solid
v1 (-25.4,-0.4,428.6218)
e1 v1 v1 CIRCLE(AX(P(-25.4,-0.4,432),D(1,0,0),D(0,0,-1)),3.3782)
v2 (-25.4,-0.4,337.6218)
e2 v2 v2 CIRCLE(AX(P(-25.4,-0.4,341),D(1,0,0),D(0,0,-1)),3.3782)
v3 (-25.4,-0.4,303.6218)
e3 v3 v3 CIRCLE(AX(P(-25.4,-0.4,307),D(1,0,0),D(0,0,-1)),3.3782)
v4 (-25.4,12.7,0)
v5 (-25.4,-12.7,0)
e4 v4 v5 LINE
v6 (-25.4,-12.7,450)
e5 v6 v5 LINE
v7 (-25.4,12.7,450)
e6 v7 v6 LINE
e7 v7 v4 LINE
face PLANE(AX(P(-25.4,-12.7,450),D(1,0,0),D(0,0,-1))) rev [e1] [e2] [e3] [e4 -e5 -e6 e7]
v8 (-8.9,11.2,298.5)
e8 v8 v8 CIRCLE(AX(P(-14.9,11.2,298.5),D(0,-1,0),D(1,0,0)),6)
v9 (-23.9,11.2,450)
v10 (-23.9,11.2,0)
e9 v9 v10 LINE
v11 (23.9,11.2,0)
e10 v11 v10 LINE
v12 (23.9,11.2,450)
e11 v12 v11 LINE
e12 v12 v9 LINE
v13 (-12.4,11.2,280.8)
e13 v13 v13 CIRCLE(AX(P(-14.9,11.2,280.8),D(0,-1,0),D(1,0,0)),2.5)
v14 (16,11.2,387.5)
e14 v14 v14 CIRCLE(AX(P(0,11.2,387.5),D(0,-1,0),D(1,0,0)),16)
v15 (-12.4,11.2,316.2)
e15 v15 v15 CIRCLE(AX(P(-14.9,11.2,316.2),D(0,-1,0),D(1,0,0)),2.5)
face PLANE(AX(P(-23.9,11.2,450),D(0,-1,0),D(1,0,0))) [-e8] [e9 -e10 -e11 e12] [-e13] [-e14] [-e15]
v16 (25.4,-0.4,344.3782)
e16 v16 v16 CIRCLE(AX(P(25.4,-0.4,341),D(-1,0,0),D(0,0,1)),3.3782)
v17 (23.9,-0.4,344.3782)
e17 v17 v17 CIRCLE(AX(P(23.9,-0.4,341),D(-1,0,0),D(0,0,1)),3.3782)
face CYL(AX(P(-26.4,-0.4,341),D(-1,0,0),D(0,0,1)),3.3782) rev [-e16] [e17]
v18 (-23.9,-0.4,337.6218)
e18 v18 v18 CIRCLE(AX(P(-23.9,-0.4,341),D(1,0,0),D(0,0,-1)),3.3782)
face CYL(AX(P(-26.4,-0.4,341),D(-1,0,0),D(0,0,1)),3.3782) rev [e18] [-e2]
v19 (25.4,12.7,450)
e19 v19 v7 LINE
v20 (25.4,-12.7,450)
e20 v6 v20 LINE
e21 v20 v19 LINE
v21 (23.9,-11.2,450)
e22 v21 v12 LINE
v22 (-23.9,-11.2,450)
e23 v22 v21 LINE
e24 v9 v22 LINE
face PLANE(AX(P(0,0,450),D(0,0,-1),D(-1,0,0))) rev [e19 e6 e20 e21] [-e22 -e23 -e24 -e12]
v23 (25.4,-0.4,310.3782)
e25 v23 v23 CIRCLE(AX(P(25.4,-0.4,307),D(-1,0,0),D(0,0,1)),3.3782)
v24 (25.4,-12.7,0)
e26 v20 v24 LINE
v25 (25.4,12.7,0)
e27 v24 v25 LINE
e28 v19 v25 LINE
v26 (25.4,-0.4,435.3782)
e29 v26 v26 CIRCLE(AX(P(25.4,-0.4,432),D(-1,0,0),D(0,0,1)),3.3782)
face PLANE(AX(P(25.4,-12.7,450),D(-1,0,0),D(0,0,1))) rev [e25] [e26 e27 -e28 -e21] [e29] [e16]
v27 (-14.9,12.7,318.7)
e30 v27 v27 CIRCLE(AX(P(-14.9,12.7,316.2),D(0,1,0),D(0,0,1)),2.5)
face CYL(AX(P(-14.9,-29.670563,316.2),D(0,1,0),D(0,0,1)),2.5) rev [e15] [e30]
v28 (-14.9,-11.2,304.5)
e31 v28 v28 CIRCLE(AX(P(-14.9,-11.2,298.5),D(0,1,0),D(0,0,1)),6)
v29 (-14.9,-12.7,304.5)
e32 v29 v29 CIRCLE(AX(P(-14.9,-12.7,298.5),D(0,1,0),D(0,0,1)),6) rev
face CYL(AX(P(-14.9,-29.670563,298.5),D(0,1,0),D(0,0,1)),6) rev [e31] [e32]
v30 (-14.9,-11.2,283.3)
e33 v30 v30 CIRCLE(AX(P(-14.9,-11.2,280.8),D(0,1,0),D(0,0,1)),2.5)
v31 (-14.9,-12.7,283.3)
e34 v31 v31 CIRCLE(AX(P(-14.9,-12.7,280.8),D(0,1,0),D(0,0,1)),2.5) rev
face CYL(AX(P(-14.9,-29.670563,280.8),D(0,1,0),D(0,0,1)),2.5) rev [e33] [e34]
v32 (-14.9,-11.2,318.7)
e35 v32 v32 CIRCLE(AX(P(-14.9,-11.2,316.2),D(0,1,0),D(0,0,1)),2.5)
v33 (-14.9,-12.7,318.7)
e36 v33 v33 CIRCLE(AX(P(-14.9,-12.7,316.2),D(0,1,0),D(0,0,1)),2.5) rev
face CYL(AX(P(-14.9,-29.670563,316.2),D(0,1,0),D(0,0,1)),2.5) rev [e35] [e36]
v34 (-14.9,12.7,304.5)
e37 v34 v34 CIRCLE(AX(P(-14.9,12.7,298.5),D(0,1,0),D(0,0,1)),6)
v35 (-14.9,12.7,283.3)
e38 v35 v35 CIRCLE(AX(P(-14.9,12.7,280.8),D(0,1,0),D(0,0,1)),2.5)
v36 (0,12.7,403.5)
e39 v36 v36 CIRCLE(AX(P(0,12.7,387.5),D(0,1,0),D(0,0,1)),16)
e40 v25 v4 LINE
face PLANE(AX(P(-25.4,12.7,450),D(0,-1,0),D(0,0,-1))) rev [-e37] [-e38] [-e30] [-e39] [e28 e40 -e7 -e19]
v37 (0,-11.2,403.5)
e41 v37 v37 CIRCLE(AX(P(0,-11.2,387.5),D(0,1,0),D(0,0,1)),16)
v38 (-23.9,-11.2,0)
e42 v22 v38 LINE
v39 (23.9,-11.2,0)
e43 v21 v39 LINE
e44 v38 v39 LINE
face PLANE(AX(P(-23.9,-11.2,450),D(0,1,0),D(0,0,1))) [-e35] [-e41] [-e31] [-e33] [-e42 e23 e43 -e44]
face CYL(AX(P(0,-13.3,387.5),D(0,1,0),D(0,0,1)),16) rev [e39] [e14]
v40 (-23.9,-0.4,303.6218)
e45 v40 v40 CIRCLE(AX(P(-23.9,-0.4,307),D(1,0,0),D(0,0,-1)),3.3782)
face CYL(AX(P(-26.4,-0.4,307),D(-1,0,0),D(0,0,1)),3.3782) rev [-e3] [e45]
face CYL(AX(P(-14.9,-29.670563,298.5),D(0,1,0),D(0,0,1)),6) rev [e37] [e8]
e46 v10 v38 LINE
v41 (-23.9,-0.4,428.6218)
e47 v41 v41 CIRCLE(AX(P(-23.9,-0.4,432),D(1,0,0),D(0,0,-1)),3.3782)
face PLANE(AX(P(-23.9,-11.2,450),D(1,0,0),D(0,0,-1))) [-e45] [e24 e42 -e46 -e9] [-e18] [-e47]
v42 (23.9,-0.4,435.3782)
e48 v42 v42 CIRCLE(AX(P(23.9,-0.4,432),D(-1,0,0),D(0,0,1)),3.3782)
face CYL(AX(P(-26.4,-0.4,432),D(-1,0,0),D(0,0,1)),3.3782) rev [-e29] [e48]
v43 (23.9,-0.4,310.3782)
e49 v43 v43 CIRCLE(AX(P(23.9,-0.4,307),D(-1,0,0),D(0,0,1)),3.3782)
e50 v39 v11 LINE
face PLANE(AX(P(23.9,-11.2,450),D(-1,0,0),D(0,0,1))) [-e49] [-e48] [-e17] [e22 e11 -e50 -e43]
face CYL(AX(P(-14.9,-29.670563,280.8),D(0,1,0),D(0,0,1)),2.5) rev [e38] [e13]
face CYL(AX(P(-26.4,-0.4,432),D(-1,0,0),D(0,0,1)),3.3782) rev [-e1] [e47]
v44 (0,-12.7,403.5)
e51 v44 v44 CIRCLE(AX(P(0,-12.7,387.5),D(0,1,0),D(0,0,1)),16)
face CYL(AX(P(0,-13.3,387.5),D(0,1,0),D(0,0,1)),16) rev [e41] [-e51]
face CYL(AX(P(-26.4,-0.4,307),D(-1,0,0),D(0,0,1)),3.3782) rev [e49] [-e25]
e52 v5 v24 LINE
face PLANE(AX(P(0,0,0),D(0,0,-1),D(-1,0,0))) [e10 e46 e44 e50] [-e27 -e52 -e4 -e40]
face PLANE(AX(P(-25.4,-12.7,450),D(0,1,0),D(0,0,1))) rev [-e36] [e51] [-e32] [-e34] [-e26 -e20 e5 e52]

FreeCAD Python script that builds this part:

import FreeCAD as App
import Part
import Sketcher

V = App.Vector
Q = App.Units.Quantity

doc = App.newDocument("Part")
body = doc.addObject("PartDesign::Body", "Body")

sketch1 = body.newObject("Sketcher::SketchObject", "Sketch")
sketch1.AttachmentSupport = (doc.getObject("XY_Plane"), [""])
sketch1.MapMode = "FlatFace"
sketch1.addGeometry([
    Part.LineSegment(V(-25.4, 12.7, 0), V(-25.4, -12.7, 0)),
    Part.LineSegment(V(-25.4, -12.7, 0), V(25.4, -12.7, 0)),
    Part.LineSegment(V(25.4, -12.7, 0), V(25.4, 12.7, 0)),
    Part.LineSegment(V(25.4, 12.7, 0), V(-25.4, 12.7, 0)),
    Part.LineSegment(V(23.9, -11.2, 0), V(-23.9, -11.2, 0)),
    Part.LineSegment(V(-23.9, -11.2, 0), V(-23.9, 11.2, 0)),
    Part.LineSegment(V(-23.9, 11.2, 0), V(23.9, 11.2, 0)),
    Part.LineSegment(V(23.9, 11.2, 0), V(23.9, -11.2, 0)),
], False)
sketch1.addConstraint([
    Sketcher.Constraint("Coincident", 0, 2, 1, 1),
    Sketcher.Constraint("Coincident", 1, 2, 2, 1),
    Sketcher.Constraint("Coincident", 2, 2, 3, 1),
    Sketcher.Constraint("Coincident", 3, 2, 0, 1),
    Sketcher.Constraint("Coincident", 4, 2, 5, 1),
    Sketcher.Constraint("Coincident", 5, 2, 6, 1),
    Sketcher.Constraint("Coincident", 6, 2, 7, 1),
    Sketcher.Constraint("Coincident", 7, 2, 4, 1),
    Sketcher.Constraint("Vertical", 0),
    Sketcher.Constraint("Horizontal", 1),
    Sketcher.Constraint("Vertical", 2),
    Sketcher.Constraint("Horizontal", 3),
    Sketcher.Constraint("Horizontal", 4),
    Sketcher.Constraint("Vertical", 5),
    Sketcher.Constraint("Horizontal", 6),
    Sketcher.Constraint("Vertical", 7),
    Sketcher.Constraint("Symmetric", 0, 2, 2, 2, -1, 1),
    Sketcher.Constraint("Symmetric", 4, 2, 6, 2, -1, 1),
    Sketcher.Constraint("DistanceX", 1, 1, 1, 2, Q("50.8 mm")),
    Sketcher.Constraint("DistanceX", 4, 2, 4, 1, Q("47.8 mm")),
    Sketcher.Constraint("DistanceY", 0, 2, 0, 1, Q("25.4 mm")),
    Sketcher.Constraint("DistanceY", 5, 1, 5, 2, Q("22.4 mm")),
])
pad1 = body.newObject("PartDesign::Pad", "Pad")
pad1.Profile = sketch1
pad1.Length = 450

sketch2 = body.newObject("Sketcher::SketchObject", "Sketch001")
sketch2.AttachmentSupport = (doc.getObject("XZ_Plane"), [""])
sketch2.MapMode = "FlatFace"
sketch2.AttachmentOffset = App.Placement(V(0, 0, -12.7), App.Rotation())
sketch2.addGeometry(Part.Circle(V(0, 387.5, 0), V(0, 0, 1), 16), False)
sketch2.addConstraint([
    Sketcher.Constraint("PointOnObject", 0, 3, -2),
    Sketcher.Constraint("Diameter", 0, Q("32 mm")),
    Sketcher.Constraint("DistanceY", -1, 1, 0, 3, Q("387.5 mm")),
])
pocket1 = body.newObject("PartDesign::Pocket", "Pocket")
pocket1.Profile = sketch2
pocket1.Length = 26
pocket1.Reversed = True

sketch3 = body.newObject("Sketcher::SketchObject", "Sketch002")
sketch3.AttachmentSupport = (doc.getObject("YZ_Plane"), [""])
sketch3.MapMode = "FlatFace"
sketch3.AttachmentOffset = App.Placement(V(0, 0, -26.4), App.Rotation())
sketch3.addGeometry([
    Part.Circle(V(-0.4, 432, 0), V(0, 0, 1), 3.3782),
    Part.Circle(V(-0.4, 341, 0), V(0, 0, 1), 3.3782),
    Part.Circle(V(-0.4, 307, 0), V(0, 0, 1), 3.3782),
], False)
sketch3.addConstraint([
    Sketcher.Constraint("Equal", 0, 1),
    Sketcher.Constraint("Equal", 1, 2),
    Sketcher.Constraint("Vertical", 0, 3, 1, 3),
    Sketcher.Constraint("Vertical", 1, 3, 2, 3),
    Sketcher.Constraint("DistanceY", -1, 1, 0, 3, Q("432 mm")),
    Sketcher.Constraint("DistanceY", -1, 1, 1, 3, Q("341 mm")),
    Sketcher.Constraint("DistanceY", -1, 1, 2, 3, Q("307 mm")),
    Sketcher.Constraint("Diameter", 0, Q("6.7564 mm")),
    Sketcher.Constraint("DistanceX", 0, 3, -1, 1, Q("0.4 mm")),
])
doc.recompute()
hole = body.newObject("PartDesign::Hole", "Hole")
hole.Profile = sketch3
hole.ThreadType = "None"
hole.Diameter = 6.7564
hole.DepthType = "ThroughAll"
hole.Reversed = True

sketch4 = body.newObject("Sketcher::SketchObject", "Sketch003")
sketch4.AttachmentSupport = (doc.getObject("XZ_Plane"), [""])
sketch4.MapMode = "FlatFace"
sketch4.AttachmentOffset = App.Placement(V(0, 0, -12.7), App.Rotation())
sketch4.addGeometry([
    Part.Circle(V(-14.9, 298.5, 0), V(0, 0, 1), 6),
    Part.Circle(V(-14.9, 280.8, 0), V(0, 0, 1), 2.5),
    Part.Circle(V(-14.9, 316.2, 0), V(0, 0, 1), 2.5),
], False)
sketch4.addConstraint([
    Sketcher.Constraint("Equal", 1, 2),
    Sketcher.Constraint("Vertical", 0, 3, 1, 3),
    Sketcher.Constraint("Vertical", 1, 3, 2, 3),
    Sketcher.Constraint("Diameter", 0, Q("12 mm")),
    Sketcher.Constraint("Diameter", 1, Q("5 mm")),
    Sketcher.Constraint("DistanceX", 0, 3, -1, 1, Q("14.9 mm")),
    Sketcher.Constraint("DistanceY", -1, 1, 0, 3, Q("298.5 mm")),
    Sketcher.Constraint("DistanceY", -1, 1, 1, 3, Q("280.8 mm")),
    Sketcher.Constraint("DistanceY", -1, 1, 2, 3, Q("316.2 mm")),
])
pocket2 = body.newObject("PartDesign::Pocket", "Pocket001")
pocket2.Profile = sketch4
pocket2.Length = 25.4
pocket2.Reversed = True

doc.recompute()
